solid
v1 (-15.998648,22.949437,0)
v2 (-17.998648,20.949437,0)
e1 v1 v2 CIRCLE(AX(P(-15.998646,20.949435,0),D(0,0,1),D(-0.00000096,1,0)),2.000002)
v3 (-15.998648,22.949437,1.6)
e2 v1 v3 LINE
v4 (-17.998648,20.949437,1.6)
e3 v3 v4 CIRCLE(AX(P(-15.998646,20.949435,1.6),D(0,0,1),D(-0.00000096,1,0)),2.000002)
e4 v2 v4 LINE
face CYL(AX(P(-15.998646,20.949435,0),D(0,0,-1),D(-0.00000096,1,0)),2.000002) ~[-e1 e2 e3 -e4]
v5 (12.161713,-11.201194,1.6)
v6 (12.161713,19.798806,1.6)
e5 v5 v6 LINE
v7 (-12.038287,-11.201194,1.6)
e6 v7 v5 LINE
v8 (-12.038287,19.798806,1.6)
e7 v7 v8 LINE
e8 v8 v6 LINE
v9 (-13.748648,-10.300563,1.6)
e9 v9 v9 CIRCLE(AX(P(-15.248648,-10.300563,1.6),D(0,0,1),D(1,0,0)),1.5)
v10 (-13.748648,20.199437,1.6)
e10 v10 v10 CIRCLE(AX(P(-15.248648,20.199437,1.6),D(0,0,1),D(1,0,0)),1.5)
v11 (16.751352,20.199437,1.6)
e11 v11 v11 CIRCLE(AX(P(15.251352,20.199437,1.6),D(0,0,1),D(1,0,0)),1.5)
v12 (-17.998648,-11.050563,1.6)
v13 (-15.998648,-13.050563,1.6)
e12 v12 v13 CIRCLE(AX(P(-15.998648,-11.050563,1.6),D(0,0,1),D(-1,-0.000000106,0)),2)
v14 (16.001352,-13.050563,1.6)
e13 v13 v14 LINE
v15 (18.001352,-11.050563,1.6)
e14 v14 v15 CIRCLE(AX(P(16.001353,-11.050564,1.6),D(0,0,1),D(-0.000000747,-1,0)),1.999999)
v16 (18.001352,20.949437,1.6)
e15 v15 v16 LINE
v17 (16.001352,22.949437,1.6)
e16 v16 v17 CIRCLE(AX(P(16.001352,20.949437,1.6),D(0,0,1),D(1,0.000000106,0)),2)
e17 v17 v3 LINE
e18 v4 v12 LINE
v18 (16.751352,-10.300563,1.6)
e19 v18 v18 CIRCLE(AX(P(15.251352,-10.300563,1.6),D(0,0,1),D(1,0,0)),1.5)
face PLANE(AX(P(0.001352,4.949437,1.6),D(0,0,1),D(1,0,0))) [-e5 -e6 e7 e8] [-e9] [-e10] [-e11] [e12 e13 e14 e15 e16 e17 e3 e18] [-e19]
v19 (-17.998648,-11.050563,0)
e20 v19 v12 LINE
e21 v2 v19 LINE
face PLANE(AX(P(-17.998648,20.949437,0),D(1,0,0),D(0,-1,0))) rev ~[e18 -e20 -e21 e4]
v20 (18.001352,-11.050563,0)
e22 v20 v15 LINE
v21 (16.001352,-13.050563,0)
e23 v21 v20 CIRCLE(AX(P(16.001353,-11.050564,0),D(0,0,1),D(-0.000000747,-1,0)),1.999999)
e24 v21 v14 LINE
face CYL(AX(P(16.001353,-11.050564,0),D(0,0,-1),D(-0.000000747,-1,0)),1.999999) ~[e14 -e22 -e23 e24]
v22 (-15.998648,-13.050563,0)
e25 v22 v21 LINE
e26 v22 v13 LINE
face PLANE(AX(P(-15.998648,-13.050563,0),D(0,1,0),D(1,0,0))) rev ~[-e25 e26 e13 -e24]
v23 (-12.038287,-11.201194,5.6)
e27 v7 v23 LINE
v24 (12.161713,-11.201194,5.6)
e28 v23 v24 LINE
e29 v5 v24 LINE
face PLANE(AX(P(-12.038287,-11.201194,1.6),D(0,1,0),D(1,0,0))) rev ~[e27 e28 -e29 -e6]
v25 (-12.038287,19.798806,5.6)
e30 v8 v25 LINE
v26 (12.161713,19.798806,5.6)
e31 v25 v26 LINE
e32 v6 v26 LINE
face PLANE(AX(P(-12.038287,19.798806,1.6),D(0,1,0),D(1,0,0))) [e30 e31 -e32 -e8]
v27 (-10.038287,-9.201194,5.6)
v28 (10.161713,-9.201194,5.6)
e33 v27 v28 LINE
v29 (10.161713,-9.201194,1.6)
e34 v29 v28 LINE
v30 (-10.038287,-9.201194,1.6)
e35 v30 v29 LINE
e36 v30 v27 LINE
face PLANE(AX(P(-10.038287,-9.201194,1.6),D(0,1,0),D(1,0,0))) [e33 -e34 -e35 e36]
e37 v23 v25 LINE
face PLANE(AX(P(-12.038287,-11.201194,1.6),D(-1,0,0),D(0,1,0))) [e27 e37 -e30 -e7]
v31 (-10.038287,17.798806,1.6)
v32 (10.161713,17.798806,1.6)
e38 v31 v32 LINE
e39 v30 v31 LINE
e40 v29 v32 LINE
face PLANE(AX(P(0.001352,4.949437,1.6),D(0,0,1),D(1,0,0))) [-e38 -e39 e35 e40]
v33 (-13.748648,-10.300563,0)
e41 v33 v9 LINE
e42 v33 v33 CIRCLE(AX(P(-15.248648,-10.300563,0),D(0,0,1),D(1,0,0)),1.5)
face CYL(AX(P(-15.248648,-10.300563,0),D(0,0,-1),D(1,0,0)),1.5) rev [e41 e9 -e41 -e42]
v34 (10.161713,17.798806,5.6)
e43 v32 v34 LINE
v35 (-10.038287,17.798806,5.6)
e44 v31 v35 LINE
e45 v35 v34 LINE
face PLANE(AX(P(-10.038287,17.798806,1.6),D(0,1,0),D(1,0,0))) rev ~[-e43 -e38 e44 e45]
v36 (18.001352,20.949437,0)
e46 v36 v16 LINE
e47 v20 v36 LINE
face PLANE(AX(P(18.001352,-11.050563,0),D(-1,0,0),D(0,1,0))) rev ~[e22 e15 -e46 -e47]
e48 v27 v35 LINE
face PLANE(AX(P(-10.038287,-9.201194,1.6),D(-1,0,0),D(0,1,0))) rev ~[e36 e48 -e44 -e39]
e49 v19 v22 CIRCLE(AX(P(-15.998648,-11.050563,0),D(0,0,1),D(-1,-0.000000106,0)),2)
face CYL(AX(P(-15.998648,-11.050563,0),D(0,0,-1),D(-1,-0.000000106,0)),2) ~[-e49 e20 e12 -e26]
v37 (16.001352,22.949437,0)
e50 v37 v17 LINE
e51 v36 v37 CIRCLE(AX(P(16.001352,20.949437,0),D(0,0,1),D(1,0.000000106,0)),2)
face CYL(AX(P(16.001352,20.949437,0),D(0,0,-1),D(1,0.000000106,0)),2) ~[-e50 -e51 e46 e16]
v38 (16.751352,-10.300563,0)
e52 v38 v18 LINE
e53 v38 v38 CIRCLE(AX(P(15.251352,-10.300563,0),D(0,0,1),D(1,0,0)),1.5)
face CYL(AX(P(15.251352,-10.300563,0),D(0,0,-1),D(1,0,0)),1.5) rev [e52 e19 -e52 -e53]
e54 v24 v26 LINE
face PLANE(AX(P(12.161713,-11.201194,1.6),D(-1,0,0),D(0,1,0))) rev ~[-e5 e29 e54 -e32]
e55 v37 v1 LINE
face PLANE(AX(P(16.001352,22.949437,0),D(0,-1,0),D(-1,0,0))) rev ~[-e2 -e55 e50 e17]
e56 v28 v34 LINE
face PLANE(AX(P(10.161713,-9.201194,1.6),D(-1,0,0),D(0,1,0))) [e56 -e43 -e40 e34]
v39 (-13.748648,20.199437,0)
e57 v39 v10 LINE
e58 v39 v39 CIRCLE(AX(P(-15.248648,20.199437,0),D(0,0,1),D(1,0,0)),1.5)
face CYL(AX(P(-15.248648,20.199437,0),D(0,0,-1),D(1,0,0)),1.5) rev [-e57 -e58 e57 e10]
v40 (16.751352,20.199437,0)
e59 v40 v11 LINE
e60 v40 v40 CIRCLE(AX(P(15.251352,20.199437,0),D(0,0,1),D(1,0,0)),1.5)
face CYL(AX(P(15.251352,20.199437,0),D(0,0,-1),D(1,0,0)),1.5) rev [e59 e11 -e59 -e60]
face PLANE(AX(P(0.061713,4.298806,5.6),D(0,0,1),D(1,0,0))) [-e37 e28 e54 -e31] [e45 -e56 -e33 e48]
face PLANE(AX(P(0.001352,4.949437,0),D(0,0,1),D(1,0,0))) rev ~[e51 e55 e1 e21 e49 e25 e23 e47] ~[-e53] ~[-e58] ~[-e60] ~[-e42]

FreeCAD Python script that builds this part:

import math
import FreeCAD as App
import Part
import Sketcher
Q = App.Units.Quantity

doc = App.newDocument("Part")
body = doc.addObject("PartDesign::Body", "Body")

# Sketch on XY plane
sketch1 = body.newObject("Sketcher::SketchObject", "Sketch")
sketch1.AttachmentSupport = (doc.getObject("XY_Plane"), [""])
sketch1.MapMode = "FlatFace"
sketch1.addGeometry(Part.ArcOfCircle(Part.Circle(App.Vector(-16, 20.9, 0), App.Vector(0, 0, 1), 2), math.radians(90), math.radians(180)), False)
sketch1.addGeometry(Part.LineSegment(App.Vector(-18, 20.9, 0), App.Vector(-18, -11.1, 0)), False)
sketch1.addGeometry(Part.ArcOfCircle(Part.Circle(App.Vector(-16, -11.1, 0), App.Vector(0, 0, 1), 2), math.radians(-180), math.radians(-90)), False)
sketch1.addGeometry(Part.LineSegment(App.Vector(-16, -13.1, 0), App.Vector(16, -13.1, 0)), False)
sketch1.addGeometry(Part.ArcOfCircle(Part.Circle(App.Vector(16, -11.1, 0), App.Vector(0, 0, 1), 2), math.radians(-90), math.radians(0)), False)
sketch1.addGeometry(Part.LineSegment(App.Vector(18, -11.1, 0), App.Vector(18, 20.9, 0)), False)
sketch1.addGeometry(Part.ArcOfCircle(Part.Circle(App.Vector(16, 20.9, 0), App.Vector(0, 0, 1), 2), math.radians(0), math.radians(90)), False)
sketch1.addGeometry(Part.LineSegment(App.Vector(16, 22.9, 0), App.Vector(-16, 22.9, 0)), False)
sketch1.addGeometry(Part.Circle(App.Vector(-15.2, -10.3, 0), App.Vector(0, 0, 1), 1.5), False)
sketch1.addGeometry(Part.Circle(App.Vector(15.3, -10.3, 0), App.Vector(0, 0, 1), 1.5), False)
sketch1.addGeometry(Part.Circle(App.Vector(-15.2, 20.2, 0), App.Vector(0, 0, 1), 1.5), False)
sketch1.addGeometry(Part.Circle(App.Vector(15.3, 20.2, 0), App.Vector(0, 0, 1), 1.5), False)
sketch1.addConstraint(Sketcher.Constraint("Tangent", 0, 2, 1, 1))
sketch1.addConstraint(Sketcher.Constraint("Tangent", 1, 2, 2, 1))
sketch1.addConstraint(Sketcher.Constraint("Tangent", 2, 2, 3, 1))
sketch1.addConstraint(Sketcher.Constraint("Tangent", 3, 2, 4, 1))
sketch1.addConstraint(Sketcher.Constraint("Tangent", 4, 2, 5, 1))
sketch1.addConstraint(Sketcher.Constraint("Tangent", 5, 2, 6, 1))
sketch1.addConstraint(Sketcher.Constraint("Tangent", 6, 2, 7, 1))
sketch1.addConstraint(Sketcher.Constraint("Tangent", 7, 2, 0, 1))
sketch1.addConstraint(Sketcher.Constraint("Vertical", 1))
sketch1.addConstraint(Sketcher.Constraint("Horizontal", 3))
sketch1.addConstraint(Sketcher.Constraint("Vertical", 5))
sketch1.addConstraint(Sketcher.Constraint("Horizontal", 7))
sketch1.addConstraint(Sketcher.Constraint("Equal", 0, 2))
sketch1.addConstraint(Sketcher.Constraint("Equal", 2, 4))
sketch1.addConstraint(Sketcher.Constraint("Equal", 4, 6))
sketch1.addConstraint(Sketcher.Constraint("Equal", 8, 9))
sketch1.addConstraint(Sketcher.Constraint("Equal", 9, 10))
sketch1.addConstraint(Sketcher.Constraint("Equal", 10, 11))
sketch1.addConstraint(Sketcher.Constraint("Horizontal", 8, 3, 9, 3))
sketch1.addConstraint(Sketcher.Constraint("Horizontal", 10, 3, 11, 3))
sketch1.addConstraint(Sketcher.Constraint("Vertical", 8, 3, 10, 3))
sketch1.addConstraint(Sketcher.Constraint("Vertical", 9, 3, 11, 3))
sketch1.addConstraint(Sketcher.Constraint("Equal", 7, 1))
sketch1.addConstraint(Sketcher.Constraint("Diameter", 8, Q("3 mm")))
sketch1.addConstraint(Sketcher.Constraint("Radius", 0, Q("2.000002 mm")))
sketch1.addConstraint(Sketcher.Constraint("DistanceX", 3, 1, 3, 2, Q("32 mm")))
sketch1.addConstraint(Sketcher.Constraint("DistanceX", 8, 3, 9, 3, Q("30.5 mm")))
sketch1.addConstraint(Sketcher.Constraint("DistanceY", 8, 3, 10, 3, Q("30.5 mm")))
sketch1.addConstraint(Sketcher.Constraint("DistanceX", 2, 3, 8, 3, Q("0.75 mm")))
sketch1.addConstraint(Sketcher.Constraint("DistanceY", 2, 3, 8, 3, Q("0.75 mm")))
sketch1.addConstraint(Sketcher.Constraint("DistanceX", -1, 1, 6, 3, Q("16.001352 mm")))
sketch1.addConstraint(Sketcher.Constraint("DistanceY", -1, 1, 0, 3, Q("20.949435 mm")))
pad1 = body.newObject("PartDesign::Pad", "Pad")
pad1.Profile = sketch1
pad1.Length = 1.6

# Sketch on XY plane
sketch2 = body.newObject("Sketcher::SketchObject", "Sketch001")
sketch2.AttachmentSupport = (doc.getObject("XY_Plane"), [""])
sketch2.MapMode = "FlatFace"
sketch2.AttachmentOffset = App.Placement(App.Vector(0, 0, 1.6), App.Rotation())
sketch2.addGeometry(Part.LineSegment(App.Vector(-12, 20, 0), App.Vector(-12, -11, 0)), False)
sketch2.addGeometry(Part.LineSegment(App.Vector(-12, -11, 0), App.Vector(12, -11, 0)), False)
sketch2.addGeometry(Part.LineSegment(App.Vector(12, -11, 0), App.Vector(12, 20, 0)), False)
sketch2.addGeometry(Part.LineSegment(App.Vector(12, 20, 0), App.Vector(-12, 20, 0)), False)
sketch2.addGeometry(Part.LineSegment(App.Vector(10, -9, 0), App.Vector(-10, -9, 0)), False)
sketch2.addGeometry(Part.LineSegment(App.Vector(-10, -9, 0), App.Vector(-10, 18, 0)), False)
sketch2.addGeometry(Part.LineSegment(App.Vector(-10, 18, 0), App.Vector(10, 18, 0)), False)
sketch2.addGeometry(Part.LineSegment(App.Vector(10, 18, 0), App.Vector(10, -9, 0)), False)
sketch2.addConstraint(Sketcher.Constraint("Coincident", 0, 2, 1, 1))
sketch2.addConstraint(Sketcher.Constraint("Coincident", 1, 2, 2, 1))
sketch2.addConstraint(Sketcher.Constraint("Coincident", 2, 2, 3, 1))
sketch2.addConstraint(Sketcher.Constraint("Coincident", 3, 2, 0, 1))
sketch2.addConstraint(Sketcher.Constraint("Coincident", 4, 2, 5, 1))
sketch2.addConstraint(Sketcher.Constraint("Coincident", 5, 2, 6, 1))
sketch2.addConstraint(Sketcher.Constraint("Coincident", 6, 2, 7, 1))
sketch2.addConstraint(Sketcher.Constraint("Coincident", 7, 2, 4, 1))
sketch2.addConstraint(Sketcher.Constraint("Vertical", 0))
sketch2.addConstraint(Sketcher.Constraint("Horizontal", 1))
sketch2.addConstraint(Sketcher.Constraint("Vertical", 2))
sketch2.addConstraint(Sketcher.Constraint("Horizontal", 3))
sketch2.addConstraint(Sketcher.Constraint("Horizontal", 4))
sketch2.addConstraint(Sketcher.Constraint("Vertical", 5))
sketch2.addConstraint(Sketcher.Constraint("Horizontal", 6))
sketch2.addConstraint(Sketcher.Constraint("Vertical", 7))
sketch2.addConstraint(Sketcher.Constraint("DistanceY", 0, 2, 0, 1, Q("31 mm")))
sketch2.addConstraint(Sketcher.Constraint("DistanceY", 5, 1, 5, 2, Q("27 mm")))
sketch2.addConstraint(Sketcher.Constraint("DistanceX", 1, 1, 1, 2, Q("24.2 mm")))
sketch2.addConstraint(Sketcher.Constraint("DistanceX", 4, 2, 4, 1, Q("20.2 mm")))
sketch2.addConstraint(Sketcher.Constraint("DistanceX", 0, 2, 4, 2, Q("2 mm")))
sketch2.addConstraint(Sketcher.Constraint("DistanceY", 0, 2, 4, 2, Q("2 mm")))
sketch2.addConstraint(Sketcher.Constraint("DistanceX", 0, 2, -1, 1, Q("12.038287 mm")))
sketch2.addConstraint(Sketcher.Constraint("DistanceY", 0, 2, -1, 1, Q("11.201194 mm")))
pad2 = body.newObject("PartDesign::Pad", "Pad001")
pad2.Profile = sketch2
pad2.Length = 4

doc.recompute()
